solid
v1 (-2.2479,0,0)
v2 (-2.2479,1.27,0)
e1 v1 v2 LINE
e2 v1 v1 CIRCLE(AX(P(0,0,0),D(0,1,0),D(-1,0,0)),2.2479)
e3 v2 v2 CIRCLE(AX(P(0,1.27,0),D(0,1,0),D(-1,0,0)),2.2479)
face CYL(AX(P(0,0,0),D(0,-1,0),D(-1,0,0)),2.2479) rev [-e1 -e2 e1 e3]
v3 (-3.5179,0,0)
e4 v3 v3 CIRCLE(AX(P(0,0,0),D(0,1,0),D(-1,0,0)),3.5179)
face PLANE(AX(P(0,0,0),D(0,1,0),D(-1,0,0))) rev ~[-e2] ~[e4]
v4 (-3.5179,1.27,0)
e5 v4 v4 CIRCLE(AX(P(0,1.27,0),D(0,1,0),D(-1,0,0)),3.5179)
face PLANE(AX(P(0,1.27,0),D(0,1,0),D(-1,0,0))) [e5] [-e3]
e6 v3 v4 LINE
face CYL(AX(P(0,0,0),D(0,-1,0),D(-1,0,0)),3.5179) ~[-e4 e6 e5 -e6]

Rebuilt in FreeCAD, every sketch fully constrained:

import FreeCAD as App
import Part
import Sketcher

V = App.Vector
Q = App.Units.Quantity

doc = App.newDocument("Part")
body = doc.addObject("PartDesign::Body", "Body")

# Sketch on XZ plane
sketch1 = body.newObject("Sketcher::SketchObject", "Sketch")
sketch1.AttachmentSupport = (doc.getObject("XZ_Plane"), [""])
sketch1.MapMode = "FlatFace"
sketch1.addGeometry(Part.Circle(V(0, 0, 0), V(0, 0, 1), 3.5), False)
sketch1.addGeometry(Part.Circle(V(0, 0, 0), V(0, 0, 1), 2.2), False)
sketch1.addConstraint(Sketcher.Constraint("Coincident", 0, 3, -1, 1))
sketch1.addConstraint(Sketcher.Constraint("Coincident", 1, 3, -1, 1))
sketch1.addConstraint(Sketcher.Constraint("Diameter", 1, Q("0.177 in")))
sketch1.addConstraint(Sketcher.Constraint("Diameter", 0, Q("0.277 in")))
pad1 = body.newObject("PartDesign::Pad", "Pad")
pad1.Profile = sketch1
pad1.Length = Q("0.05 in")
pad1.Reversed = True

doc.recompute()
